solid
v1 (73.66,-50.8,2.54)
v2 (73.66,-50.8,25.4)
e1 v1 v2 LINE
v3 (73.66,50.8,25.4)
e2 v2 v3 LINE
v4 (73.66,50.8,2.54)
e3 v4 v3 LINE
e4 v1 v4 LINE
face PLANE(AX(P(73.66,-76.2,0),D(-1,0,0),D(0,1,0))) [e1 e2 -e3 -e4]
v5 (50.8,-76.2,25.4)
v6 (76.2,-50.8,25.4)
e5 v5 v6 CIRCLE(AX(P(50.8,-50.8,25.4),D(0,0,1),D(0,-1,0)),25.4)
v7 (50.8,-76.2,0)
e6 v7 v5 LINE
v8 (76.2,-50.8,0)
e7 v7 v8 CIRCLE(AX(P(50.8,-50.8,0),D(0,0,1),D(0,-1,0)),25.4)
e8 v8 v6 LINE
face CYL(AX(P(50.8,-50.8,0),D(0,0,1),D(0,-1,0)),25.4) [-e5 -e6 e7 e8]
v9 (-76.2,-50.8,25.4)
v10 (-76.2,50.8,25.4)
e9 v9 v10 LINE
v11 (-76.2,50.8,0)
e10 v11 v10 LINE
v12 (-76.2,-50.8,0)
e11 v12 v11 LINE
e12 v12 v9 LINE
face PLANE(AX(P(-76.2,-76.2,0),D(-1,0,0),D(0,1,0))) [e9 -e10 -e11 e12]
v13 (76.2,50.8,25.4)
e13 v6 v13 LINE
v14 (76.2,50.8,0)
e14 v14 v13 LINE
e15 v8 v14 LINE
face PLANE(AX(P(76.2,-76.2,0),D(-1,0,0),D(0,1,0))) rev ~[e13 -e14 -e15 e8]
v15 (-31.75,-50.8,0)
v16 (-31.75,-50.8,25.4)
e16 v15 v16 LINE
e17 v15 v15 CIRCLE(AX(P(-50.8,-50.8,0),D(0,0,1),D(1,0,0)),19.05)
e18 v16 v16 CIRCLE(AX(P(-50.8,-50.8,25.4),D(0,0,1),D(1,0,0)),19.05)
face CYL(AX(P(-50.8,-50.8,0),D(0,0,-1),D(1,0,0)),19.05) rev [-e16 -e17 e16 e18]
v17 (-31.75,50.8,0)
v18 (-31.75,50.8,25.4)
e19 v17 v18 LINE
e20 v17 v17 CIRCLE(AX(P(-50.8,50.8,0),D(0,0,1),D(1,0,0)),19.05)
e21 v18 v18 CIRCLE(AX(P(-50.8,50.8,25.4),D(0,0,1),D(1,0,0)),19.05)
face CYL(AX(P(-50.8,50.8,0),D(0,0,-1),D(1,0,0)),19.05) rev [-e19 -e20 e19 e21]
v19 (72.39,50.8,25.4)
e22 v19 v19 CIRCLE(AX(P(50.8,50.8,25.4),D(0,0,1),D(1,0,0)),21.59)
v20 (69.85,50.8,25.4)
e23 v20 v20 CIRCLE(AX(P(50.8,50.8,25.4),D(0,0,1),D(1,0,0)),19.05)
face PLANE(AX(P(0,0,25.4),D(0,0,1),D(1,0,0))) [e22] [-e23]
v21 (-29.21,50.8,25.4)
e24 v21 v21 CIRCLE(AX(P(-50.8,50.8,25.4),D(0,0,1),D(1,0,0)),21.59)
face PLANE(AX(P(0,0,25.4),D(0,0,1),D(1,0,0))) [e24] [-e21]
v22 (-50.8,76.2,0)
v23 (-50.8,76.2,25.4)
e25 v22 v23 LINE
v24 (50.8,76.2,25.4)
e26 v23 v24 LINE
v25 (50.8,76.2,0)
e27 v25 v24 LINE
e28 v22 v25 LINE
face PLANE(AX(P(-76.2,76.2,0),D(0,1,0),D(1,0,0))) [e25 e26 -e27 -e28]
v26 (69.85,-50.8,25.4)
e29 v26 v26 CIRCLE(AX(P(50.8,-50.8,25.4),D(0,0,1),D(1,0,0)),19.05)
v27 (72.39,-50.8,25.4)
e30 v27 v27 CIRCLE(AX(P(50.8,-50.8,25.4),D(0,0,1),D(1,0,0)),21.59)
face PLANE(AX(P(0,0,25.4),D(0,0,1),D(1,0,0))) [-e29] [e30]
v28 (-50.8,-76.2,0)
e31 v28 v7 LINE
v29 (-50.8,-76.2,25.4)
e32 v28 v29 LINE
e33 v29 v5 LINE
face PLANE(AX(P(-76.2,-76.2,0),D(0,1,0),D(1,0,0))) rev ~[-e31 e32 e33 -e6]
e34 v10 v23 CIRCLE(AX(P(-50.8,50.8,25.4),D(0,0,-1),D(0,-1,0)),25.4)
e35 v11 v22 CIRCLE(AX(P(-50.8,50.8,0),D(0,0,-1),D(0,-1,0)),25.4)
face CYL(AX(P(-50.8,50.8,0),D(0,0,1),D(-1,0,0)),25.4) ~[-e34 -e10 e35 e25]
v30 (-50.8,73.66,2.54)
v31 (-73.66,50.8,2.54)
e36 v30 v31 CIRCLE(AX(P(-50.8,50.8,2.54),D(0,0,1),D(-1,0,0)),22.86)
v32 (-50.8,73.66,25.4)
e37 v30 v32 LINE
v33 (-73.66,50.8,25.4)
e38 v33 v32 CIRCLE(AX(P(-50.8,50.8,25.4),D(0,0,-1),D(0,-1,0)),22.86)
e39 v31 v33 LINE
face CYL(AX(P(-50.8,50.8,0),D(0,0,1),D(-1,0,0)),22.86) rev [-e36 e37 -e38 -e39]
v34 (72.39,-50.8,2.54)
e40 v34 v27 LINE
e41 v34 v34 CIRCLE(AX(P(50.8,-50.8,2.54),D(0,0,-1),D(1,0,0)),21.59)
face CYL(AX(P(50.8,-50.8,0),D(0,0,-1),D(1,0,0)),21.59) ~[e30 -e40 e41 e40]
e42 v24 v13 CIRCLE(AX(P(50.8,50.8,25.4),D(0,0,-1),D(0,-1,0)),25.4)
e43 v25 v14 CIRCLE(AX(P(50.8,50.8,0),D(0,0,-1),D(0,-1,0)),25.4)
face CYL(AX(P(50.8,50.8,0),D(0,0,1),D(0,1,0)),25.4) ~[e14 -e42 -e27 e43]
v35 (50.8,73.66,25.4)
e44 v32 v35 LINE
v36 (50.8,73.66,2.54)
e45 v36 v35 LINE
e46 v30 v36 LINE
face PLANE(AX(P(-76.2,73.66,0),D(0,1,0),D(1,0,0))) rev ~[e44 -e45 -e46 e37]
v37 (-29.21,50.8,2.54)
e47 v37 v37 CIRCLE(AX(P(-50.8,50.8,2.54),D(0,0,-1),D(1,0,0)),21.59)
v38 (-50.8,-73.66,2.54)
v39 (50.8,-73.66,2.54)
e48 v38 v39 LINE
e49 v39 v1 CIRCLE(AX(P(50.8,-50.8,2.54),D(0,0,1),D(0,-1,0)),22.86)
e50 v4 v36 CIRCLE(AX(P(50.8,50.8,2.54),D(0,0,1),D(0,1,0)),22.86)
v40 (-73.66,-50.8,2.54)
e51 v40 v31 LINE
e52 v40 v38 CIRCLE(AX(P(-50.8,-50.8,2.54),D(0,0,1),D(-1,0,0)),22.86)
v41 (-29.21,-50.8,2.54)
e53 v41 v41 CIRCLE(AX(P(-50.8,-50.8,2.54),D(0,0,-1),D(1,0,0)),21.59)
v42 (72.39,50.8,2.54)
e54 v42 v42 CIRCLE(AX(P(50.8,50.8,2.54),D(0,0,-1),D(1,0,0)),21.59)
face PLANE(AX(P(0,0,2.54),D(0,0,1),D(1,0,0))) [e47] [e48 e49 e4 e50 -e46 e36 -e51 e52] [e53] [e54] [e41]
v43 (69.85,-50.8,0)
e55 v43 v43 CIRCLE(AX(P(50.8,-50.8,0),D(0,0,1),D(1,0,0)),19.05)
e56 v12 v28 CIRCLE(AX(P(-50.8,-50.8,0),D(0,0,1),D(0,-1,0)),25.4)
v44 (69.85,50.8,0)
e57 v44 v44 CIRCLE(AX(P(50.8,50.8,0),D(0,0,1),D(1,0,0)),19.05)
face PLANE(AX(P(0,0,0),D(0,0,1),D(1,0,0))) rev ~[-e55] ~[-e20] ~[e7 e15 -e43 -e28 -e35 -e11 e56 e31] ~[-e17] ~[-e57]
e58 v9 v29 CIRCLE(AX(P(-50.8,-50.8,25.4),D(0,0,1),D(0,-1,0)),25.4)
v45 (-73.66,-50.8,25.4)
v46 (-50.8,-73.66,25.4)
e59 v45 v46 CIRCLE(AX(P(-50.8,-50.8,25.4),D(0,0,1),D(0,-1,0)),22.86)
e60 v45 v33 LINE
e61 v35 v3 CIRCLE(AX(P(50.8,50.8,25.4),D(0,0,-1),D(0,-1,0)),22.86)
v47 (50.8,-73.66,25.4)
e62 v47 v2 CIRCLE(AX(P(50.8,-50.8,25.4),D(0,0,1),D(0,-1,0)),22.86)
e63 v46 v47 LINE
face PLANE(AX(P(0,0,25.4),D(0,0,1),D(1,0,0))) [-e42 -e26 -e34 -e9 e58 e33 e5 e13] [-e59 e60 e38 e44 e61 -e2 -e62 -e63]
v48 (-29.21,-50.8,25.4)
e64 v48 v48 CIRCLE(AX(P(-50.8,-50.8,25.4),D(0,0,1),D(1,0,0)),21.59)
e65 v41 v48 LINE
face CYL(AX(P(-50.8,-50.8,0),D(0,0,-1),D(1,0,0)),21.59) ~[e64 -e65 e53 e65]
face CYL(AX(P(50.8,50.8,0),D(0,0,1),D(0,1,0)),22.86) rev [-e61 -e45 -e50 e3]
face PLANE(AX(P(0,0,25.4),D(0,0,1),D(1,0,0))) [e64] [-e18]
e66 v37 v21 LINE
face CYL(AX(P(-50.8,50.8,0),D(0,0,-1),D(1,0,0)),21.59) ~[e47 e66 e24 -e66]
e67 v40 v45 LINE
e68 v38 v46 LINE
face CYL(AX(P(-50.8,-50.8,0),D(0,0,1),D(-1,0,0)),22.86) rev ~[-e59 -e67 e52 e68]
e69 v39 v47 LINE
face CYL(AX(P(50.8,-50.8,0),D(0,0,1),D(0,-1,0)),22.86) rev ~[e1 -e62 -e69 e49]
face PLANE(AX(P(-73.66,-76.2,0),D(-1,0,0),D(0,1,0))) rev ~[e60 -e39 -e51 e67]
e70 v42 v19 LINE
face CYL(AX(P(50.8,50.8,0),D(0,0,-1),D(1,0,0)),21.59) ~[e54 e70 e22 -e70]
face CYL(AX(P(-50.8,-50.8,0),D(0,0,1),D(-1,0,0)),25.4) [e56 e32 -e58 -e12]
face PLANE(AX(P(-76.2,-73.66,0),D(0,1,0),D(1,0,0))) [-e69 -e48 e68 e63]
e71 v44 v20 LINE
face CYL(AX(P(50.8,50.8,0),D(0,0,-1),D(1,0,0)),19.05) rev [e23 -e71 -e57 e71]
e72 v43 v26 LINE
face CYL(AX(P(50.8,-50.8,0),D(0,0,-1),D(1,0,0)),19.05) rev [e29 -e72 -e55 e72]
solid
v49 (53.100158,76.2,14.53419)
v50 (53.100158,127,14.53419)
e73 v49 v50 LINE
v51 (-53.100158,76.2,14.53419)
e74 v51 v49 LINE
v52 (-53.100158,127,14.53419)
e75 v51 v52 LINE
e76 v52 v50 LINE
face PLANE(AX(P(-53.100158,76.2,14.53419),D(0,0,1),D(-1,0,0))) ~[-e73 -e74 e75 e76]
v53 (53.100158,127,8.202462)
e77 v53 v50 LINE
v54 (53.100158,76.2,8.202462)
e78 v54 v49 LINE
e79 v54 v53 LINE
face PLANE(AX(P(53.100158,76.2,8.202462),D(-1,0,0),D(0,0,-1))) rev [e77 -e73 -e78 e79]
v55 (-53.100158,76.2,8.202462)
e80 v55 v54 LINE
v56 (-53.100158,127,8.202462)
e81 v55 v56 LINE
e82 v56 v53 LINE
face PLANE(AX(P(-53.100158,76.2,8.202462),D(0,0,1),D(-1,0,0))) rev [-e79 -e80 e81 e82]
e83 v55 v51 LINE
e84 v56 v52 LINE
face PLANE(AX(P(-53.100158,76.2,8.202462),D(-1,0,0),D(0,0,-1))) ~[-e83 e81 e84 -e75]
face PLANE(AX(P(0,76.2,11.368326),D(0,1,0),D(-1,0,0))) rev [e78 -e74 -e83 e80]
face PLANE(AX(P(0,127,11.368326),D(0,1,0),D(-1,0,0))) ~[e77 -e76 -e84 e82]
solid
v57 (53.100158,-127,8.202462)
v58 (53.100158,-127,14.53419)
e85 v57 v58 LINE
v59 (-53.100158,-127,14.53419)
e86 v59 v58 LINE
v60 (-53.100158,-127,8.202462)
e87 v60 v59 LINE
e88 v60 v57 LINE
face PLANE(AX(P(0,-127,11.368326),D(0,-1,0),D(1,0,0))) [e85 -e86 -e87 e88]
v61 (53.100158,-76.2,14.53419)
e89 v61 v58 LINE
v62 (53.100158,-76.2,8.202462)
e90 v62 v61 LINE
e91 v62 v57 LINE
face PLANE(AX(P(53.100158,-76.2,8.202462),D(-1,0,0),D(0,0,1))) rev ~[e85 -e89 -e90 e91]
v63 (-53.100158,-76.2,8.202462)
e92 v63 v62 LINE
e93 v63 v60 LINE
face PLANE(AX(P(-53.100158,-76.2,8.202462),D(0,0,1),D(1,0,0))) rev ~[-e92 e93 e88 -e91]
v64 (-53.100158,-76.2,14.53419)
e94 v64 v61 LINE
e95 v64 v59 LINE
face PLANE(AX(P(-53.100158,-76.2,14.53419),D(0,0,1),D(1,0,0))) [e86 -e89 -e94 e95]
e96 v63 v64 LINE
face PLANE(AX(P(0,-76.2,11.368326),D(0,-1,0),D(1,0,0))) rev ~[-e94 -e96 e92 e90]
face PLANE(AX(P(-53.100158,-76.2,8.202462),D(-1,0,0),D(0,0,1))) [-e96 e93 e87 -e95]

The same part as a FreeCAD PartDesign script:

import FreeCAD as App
import Part
import Sketcher
from FreeCAD import Vector
Q = App.Units.Quantity


def edges_at(feature, points):
    """Names of the edges that pass closest to the given points."""
    edges = feature.Shape.Edges
    near = lambda p: min(range(len(edges)), key=lambda i: edges[i].distToShape(Part.Vertex(*p))[0])
    return sorted({f"Edge{near(p) + 1}" for p in points})


def faces_at(feature, points):
    """Names of the faces that lie closest to the given points."""
    faces = feature.Shape.Faces
    near = lambda p: min(range(len(faces)), key=lambda i: faces[i].distToShape(Part.Vertex(*p))[0])
    return sorted({f"Face{near(p) + 1}" for p in points})


def add_polygon(sketch, points):
    """Adds a closed chain of lines whose ends are joined by coincident constraints."""
    first, n = sketch.GeometryCount, len(points)
    for a, b in zip(points, points[1:] + points[:1]):
        sketch.addGeometry(Part.LineSegment(App.Vector(*a, 0), App.Vector(*b, 0)), False)
    for i in range(n):
        sketch.addConstraint(Sketcher.Constraint("Coincident", first + i, 2, first + (i + 1) % n, 1))

doc = App.newDocument("Part")
body = doc.addObject("PartDesign::Body", "Body")

sketch1 = doc.addObject("Sketcher::SketchObject", "Sketch")
body.addObject(sketch1)
sketch1.AttachmentSupport = (doc.XY_Plane, [""])
sketch1.MapMode = "FlatFace"
add_polygon(sketch1, [(-76, 76), (-76, -76), (76, -76), (76, 76)])
sketch1.addGeometry(Part.Circle(Vector(-51, -51, 0), Vector(0, 0, 1), 19), False)
sketch1.addGeometry(Part.Circle(Vector(51, -51, 0), Vector(0, 0, 1), 19), False)
sketch1.addGeometry(Part.Circle(Vector(-51, 51, 0), Vector(0, 0, 1), 19), False)
sketch1.addGeometry(Part.Circle(Vector(51, 51, 0), Vector(0, 0, 1), 19), False)
sketch1.addConstraint([
    Sketcher.Constraint("Vertical", 0),
    Sketcher.Constraint("Horizontal", 1),
    Sketcher.Constraint("Vertical", 2),
    Sketcher.Constraint("Horizontal", 3),
    Sketcher.Constraint("Equal", 4, 5),
    Sketcher.Constraint("Equal", 5, 6),
    Sketcher.Constraint("Equal", 6, 7),
    Sketcher.Constraint("Symmetric", 5, 3, 6, 3, -1, 1),
    Sketcher.Constraint("Symmetric", 4, 3, 7, 3, -1, 1),
    Sketcher.Constraint("Symmetric", 0, 2, 2, 2, -1, 1),
    Sketcher.Constraint("Symmetric", 4, 3, 5, 3, -2),
    Sketcher.Constraint("Equal", 3, 0),
    Sketcher.Constraint("Diameter", 4, Q("1.5 in")),
    Sketcher.Constraint("DistanceX", 1, 1, 1, 2, Q("6 in")),
    Sketcher.Constraint("DistanceX", 4, 3, -1, 1, Q("2 in")),
    Sketcher.Constraint("DistanceY", 4, 3, -1, 1, Q("2 in")),
])
pad1 = doc.addObject("PartDesign::Pad", "Pad")
body.addObject(pad1)
pad1.Profile = sketch1
pad1.Length = Q("1 in")
doc.recompute()

fillet = doc.addObject("PartDesign::Fillet", "Fillet")
body.addObject(fillet)
fillet.Base = (pad1, edges_at(pad1, [
    (76.2, -76.2, 12.7),
    (76.2, 76.2, 12.7),
    (-76.2, -76.2, 12.7),
    (-76.2, 76.2, 12.7),
]))
fillet.Radius = Q("1 in")
doc.recompute()

thickness = doc.addObject("PartDesign::Thickness", "Thickness")
body.addObject(thickness)
thickness.Base = (fillet, faces_at(fillet, [(0, 0, 25.4)]))
thickness.Value = Q("0.1 in")
thickness.Reversed = True
thickness.Join = "Arc"
body2 = doc.addObject("PartDesign::Body", "Body001")

sketch2 = doc.addObject("Sketcher::SketchObject", "Sketch001")
body2.addObject(sketch2)
sketch2.AttachmentSupport = (doc.getObject("XZ_Plane001"), [""])
sketch2.MapMode = "FlatFace"
sketch2.AttachmentOffset = App.Placement(Vector(0, 0, 3 * 25.4), App.Rotation())
add_polygon(sketch2, [(-53, 15), (-53, 8), (53, 8), (53, 15)])
sketch2.addConstraint([
    Sketcher.Constraint("Vertical", 0),
    Sketcher.Constraint("Horizontal", 1),
    Sketcher.Constraint("Vertical", 2),
    Sketcher.Constraint("Horizontal", 3),
    Sketcher.Constraint("DistanceY", 0, 2, 0, 1, 6.331729),
    Sketcher.Constraint("DistanceX", 1, 1, 1, 2, 106.200316),
    Sketcher.Constraint("DistanceY", -1, 1, 0, 2, 8.202462),
    Sketcher.Constraint("DistanceX", 0, 2, -1, 1, 53.100158),
])
pad2 = doc.addObject("PartDesign::Pad", "Pad001")
body2.addObject(pad2)
pad2.Profile = sketch2
pad2.Length = Q("2 in")
body3 = doc.addObject("PartDesign::Body", "Body002")
doc.recompute()

mirroring = doc.addObject("Part::Mirroring", "Mirroring")
mirroring.Source = body2
mirroring.Base = Vector(0, 0, 0)
mirroring.Normal = Vector(0, -1, 0)
body3.BaseFeature = mirroring
doc.recompute()
mirroring.Visibility = False

doc.recompute()
